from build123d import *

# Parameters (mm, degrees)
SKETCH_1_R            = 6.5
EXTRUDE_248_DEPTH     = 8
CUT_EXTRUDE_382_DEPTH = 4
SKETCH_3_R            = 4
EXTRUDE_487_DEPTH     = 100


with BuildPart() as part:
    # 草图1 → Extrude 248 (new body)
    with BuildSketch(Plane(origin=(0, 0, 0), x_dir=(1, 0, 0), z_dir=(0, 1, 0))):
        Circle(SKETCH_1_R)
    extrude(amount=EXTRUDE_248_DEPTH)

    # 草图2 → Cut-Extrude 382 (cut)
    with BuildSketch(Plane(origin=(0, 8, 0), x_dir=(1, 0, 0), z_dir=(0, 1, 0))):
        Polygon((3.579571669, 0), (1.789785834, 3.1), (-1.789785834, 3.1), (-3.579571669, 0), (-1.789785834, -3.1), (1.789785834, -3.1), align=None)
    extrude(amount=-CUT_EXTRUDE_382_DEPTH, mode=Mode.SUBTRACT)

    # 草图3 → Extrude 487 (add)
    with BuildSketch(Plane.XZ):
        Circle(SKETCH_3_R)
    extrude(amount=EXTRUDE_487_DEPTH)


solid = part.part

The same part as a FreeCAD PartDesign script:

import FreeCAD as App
import Part
import Sketcher
Q = App.Units.Quantity

doc = App.newDocument("Part")
body = doc.addObject("PartDesign::Body", "Body")

# Sketch on XZ plane
sketch1 = doc.addObject("Sketcher::SketchObject", "Sketch")
body.addObject(sketch1)
sketch1.AttachmentSupport = (doc.XZ_Plane, [""])
sketch1.MapMode = "FlatFace"
sketch1.addGeometry(Part.Circle(App.Vector(0, 0, 0), App.Vector(0, 0, 1), 6), False)
sketch1.addConstraint(Sketcher.Constraint("Coincident", 0, 3, -1, 1))
sketch1.addConstraint(Sketcher.Constraint("Diameter", 0, 13.0))
pad1 = doc.addObject("PartDesign::Pad", "Pad")
body.addObject(pad1)
pad1.Profile = sketch1
pad1.Length = 8
pad1.Reversed = True

# Sketch on XZ plane
sketch2 = doc.addObject("Sketcher::SketchObject", "Sketch001")
body.addObject(sketch2)
sketch2.AttachmentSupport = (doc.XZ_Plane, [""])
sketch2.MapMode = "FlatFace"
sketch2.AttachmentOffset = App.Placement(App.Vector(0, 0, -8), App.Rotation())
sketch2.addGeometry(Part.LineSegment(App.Vector(3.6, 0, 0), App.Vector(1.8, -3.1, 0)), False)
sketch2.addGeometry(Part.LineSegment(App.Vector(1.8, -3.1, 0), App.Vector(-1.8, -3.1, 0)), False)
sketch2.addGeometry(Part.LineSegment(App.Vector(-1.8, -3.1, 0), App.Vector(-3.6, 0, 0)), False)
sketch2.addGeometry(Part.LineSegment(App.Vector(-3.6, 0, 0), App.Vector(-1.8, 3.1, 0)), False)
sketch2.addGeometry(Part.LineSegment(App.Vector(-1.8, 3.1, 0), App.Vector(1.8, 3.1, 0)), False)
sketch2.addGeometry(Part.LineSegment(App.Vector(1.8, 3.1, 0), App.Vector(3.6, 0, 0)), False)
sketch2.addConstraint(Sketcher.Constraint("Coincident", 0, 2, 1, 1))
sketch2.addConstraint(Sketcher.Constraint("Coincident", 1, 2, 2, 1))
sketch2.addConstraint(Sketcher.Constraint("Coincident", 2, 2, 3, 1))
sketch2.addConstraint(Sketcher.Constraint("Coincident", 3, 2, 4, 1))
sketch2.addConstraint(Sketcher.Constraint("Coincident", 4, 2, 5, 1))
sketch2.addConstraint(Sketcher.Constraint("Coincident", 5, 2, 0, 1))
sketch2.addConstraint(Sketcher.Constraint("Horizontal", 1))
sketch2.addConstraint(Sketcher.Constraint("Horizontal", 4))
sketch2.addConstraint(Sketcher.Constraint("Symmetric", 0, 2, 3, 2, -1, 1))
sketch2.addConstraint(Sketcher.Constraint("Symmetric", 2, 2, 5, 2, -1, 1))
sketch2.addConstraint(Sketcher.Constraint("PointOnObject", 2, 2, -1))
sketch2.addConstraint(Sketcher.Constraint("Parallel", 2, 5))
sketch2.addConstraint(Sketcher.Constraint("Vertical", 1, 2, 3, 2))
sketch2.addConstraint(Sketcher.Constraint("Angle", 0, Q("-120 deg")))
sketch2.addConstraint(Sketcher.Constraint("DistanceY", 0, 2, -1, 1, 3.1))
sketch2.addConstraint(Sketcher.Constraint("DistanceX", 1, 2, 1, 1, 3.579572))
pocket1 = doc.addObject("PartDesign::Pocket", "Pocket")
body.addObject(pocket1)
pocket1.Profile = sketch2
pocket1.Length = 4
pocket1.Reversed = True

# Sketch on XZ plane
sketch3 = doc.addObject("Sketcher::SketchObject", "Sketch002")
body.addObject(sketch3)
sketch3.AttachmentSupport = (doc.XZ_Plane, [""])
sketch3.MapMode = "FlatFace"
sketch3.addGeometry(Part.Circle(App.Vector(0, 0, 0), App.Vector(0, 0, 1), 4), False)
sketch3.addConstraint(Sketcher.Constraint("Coincident", 0, 3, -1, 1))
sketch3.addConstraint(Sketcher.Constraint("Diameter", 0, 8.0))
pad2 = doc.addObject("PartDesign::Pad", "Pad001")
body.addObject(pad2)
pad2.Profile = sketch3
pad2.Length = 100

doc.recompute()
